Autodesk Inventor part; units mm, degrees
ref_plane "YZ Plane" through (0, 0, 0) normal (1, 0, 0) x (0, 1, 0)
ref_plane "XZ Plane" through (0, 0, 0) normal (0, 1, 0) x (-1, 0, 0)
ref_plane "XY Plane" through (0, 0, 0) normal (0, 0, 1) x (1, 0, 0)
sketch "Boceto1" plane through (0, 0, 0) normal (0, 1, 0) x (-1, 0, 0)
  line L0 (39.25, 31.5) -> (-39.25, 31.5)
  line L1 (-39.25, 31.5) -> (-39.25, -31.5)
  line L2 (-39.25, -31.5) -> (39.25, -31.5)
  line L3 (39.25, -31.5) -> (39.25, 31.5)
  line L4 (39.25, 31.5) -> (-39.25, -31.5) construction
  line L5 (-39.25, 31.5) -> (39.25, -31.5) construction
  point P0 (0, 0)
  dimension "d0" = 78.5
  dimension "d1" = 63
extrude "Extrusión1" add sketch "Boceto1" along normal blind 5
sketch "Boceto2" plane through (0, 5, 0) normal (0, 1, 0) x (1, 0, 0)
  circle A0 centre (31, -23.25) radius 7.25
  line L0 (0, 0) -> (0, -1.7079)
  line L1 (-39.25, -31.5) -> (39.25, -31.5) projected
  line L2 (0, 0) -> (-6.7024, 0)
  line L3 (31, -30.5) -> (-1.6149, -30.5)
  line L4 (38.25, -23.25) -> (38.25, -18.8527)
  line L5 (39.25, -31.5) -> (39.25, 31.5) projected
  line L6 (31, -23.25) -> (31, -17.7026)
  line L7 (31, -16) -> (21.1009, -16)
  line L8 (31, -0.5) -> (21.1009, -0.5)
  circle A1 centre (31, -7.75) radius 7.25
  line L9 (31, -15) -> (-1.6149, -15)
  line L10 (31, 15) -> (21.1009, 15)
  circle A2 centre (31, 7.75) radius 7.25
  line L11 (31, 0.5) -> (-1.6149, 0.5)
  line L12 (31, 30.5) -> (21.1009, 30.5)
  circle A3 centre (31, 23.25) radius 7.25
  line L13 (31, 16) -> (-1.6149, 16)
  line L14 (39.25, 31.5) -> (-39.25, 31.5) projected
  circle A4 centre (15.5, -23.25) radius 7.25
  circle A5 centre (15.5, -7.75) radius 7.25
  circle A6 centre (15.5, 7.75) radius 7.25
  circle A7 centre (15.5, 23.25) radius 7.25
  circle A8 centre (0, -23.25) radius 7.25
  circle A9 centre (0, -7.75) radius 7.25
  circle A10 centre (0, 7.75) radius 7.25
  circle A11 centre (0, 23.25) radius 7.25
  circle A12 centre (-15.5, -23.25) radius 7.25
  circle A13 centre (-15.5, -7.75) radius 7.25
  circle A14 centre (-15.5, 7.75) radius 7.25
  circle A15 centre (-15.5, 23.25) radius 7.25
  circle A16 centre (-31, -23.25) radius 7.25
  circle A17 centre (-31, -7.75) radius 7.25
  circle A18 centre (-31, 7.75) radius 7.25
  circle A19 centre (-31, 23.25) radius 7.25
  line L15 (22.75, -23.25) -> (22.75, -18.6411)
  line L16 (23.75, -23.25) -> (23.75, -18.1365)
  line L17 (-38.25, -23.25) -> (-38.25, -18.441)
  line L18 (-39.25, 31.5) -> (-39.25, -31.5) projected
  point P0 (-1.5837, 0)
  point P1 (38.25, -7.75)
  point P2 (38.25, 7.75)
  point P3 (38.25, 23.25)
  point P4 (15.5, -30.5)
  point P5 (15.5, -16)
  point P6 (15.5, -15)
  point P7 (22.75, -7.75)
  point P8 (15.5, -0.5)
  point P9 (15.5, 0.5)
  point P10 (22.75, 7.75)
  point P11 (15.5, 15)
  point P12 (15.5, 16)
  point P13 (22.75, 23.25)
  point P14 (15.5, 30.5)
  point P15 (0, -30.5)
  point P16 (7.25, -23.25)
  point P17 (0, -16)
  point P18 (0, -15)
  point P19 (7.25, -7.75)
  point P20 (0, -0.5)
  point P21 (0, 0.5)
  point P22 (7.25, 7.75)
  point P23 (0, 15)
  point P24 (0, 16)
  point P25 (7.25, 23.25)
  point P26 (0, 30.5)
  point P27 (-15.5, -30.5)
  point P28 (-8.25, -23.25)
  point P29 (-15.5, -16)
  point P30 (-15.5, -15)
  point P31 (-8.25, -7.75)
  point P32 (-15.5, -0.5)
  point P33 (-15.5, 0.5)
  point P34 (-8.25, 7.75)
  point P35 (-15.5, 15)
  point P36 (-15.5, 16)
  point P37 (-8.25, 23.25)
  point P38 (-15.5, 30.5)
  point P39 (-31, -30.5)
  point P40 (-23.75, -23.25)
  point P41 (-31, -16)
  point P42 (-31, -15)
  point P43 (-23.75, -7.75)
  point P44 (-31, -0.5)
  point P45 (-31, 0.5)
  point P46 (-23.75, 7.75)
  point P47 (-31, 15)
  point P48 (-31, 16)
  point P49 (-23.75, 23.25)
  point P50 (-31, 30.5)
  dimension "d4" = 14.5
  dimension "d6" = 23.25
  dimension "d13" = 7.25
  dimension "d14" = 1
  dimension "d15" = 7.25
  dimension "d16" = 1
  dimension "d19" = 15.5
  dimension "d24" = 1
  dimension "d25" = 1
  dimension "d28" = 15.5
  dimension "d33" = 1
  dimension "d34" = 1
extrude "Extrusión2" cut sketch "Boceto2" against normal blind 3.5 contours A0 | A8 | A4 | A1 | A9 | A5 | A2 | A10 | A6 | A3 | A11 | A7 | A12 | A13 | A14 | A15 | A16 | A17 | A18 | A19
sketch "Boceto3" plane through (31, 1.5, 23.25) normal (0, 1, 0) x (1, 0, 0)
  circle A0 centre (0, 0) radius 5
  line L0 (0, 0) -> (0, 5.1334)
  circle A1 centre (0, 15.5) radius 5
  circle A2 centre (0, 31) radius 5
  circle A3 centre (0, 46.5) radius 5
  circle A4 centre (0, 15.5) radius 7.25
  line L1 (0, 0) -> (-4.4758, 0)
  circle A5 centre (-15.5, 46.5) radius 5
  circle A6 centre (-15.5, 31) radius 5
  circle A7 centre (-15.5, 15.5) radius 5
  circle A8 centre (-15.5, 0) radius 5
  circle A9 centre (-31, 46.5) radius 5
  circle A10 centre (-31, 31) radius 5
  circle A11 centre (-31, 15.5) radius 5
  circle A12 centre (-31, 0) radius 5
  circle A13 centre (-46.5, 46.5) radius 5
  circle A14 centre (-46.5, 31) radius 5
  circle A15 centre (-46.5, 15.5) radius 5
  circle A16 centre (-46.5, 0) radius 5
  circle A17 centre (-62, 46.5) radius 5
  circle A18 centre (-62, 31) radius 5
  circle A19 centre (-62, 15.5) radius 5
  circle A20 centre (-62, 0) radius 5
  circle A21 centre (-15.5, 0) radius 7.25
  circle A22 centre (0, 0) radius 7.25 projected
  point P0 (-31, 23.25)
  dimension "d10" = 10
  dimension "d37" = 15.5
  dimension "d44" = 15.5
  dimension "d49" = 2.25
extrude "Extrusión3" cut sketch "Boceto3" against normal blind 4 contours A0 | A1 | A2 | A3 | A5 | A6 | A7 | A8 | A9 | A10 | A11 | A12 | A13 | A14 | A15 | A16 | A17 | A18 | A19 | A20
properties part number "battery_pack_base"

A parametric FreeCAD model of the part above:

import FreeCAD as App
import Part
import Sketcher
Q = App.Units.Quantity

doc = App.newDocument("Part")
body = doc.addObject("PartDesign::Body", "Body")

# Sketch on XZ plane
sketch1 = body.newObject("Sketcher::SketchObject", "Sketch")
sketch1.AttachmentSupport = (doc.getObject("XZ_Plane"), [""])
sketch1.MapMode = "FlatFace"
sketch1.addGeometry([
    Part.LineSegment(App.Vector(-39.25, -31.5, 0), App.Vector(-39.25, 31.5, 0)),
    Part.LineSegment(App.Vector(-39.25, 31.5, 0), App.Vector(39.25, 31.5, 0)),
    Part.LineSegment(App.Vector(39.25, 31.5, 0), App.Vector(39.25, -31.5, 0)),
    Part.LineSegment(App.Vector(39.25, -31.5, 0), App.Vector(-39.25, -31.5, 0)),
], False)
sketch1.addConstraint([
    Sketcher.Constraint("Coincident", 0, 2, 1, 1),
    Sketcher.Constraint("Coincident", 1, 2, 2, 1),
    Sketcher.Constraint("Coincident", 2, 2, 3, 1),
    Sketcher.Constraint("Coincident", 3, 2, 0, 1),
    Sketcher.Constraint("Vertical", 0),
    Sketcher.Constraint("Horizontal", 1),
    Sketcher.Constraint("Vertical", 2),
    Sketcher.Constraint("Horizontal", 3),
    Sketcher.Constraint("Symmetric", 0, 2, 2, 2, -1, 1),
    Sketcher.Constraint("DistanceY", 0, 1, 0, 2, Q("63 mm")),
    Sketcher.Constraint("DistanceX", 1, 1, 1, 2, Q("78.5 mm")),
])
pad1 = body.newObject("PartDesign::Pad", "Pad")
pad1.Profile = sketch1
pad1.Length = 5
pad1.Reversed = True

# Sketch on XZ plane
sketch2 = body.newObject("Sketcher::SketchObject", "Sketch001")
sketch2.AttachmentSupport = (doc.getObject("XZ_Plane"), [""])
sketch2.MapMode = "FlatFace"
sketch2.AttachmentOffset = App.Placement(App.Vector(0, 0, -5), App.Rotation())
sketch2.addGeometry([
    Part.Circle(App.Vector(31, 23.25, 0), App.Vector(0, 0, 1), 7.25),  # 0
    Part.Circle(App.Vector(0, 23.25, 0), App.Vector(0, 0, 1), 7.25),  # 1
    Part.Circle(App.Vector(15.5, 23.25, 0), App.Vector(0, 0, 1), 7.25),  # 2
    Part.Circle(App.Vector(31, 7.75, 0), App.Vector(0, 0, 1), 7.25),  # 3
    Part.Circle(App.Vector(0, 7.75, 0), App.Vector(0, 0, 1), 7.25),  # 4
    Part.Circle(App.Vector(15.5, 7.75, 0), App.Vector(0, 0, 1), 7.25),  # 5
    Part.Circle(App.Vector(31, -7.75, 0), App.Vector(0, 0, 1), 7.25),  # 6
    Part.Circle(App.Vector(0, -7.75, 0), App.Vector(0, 0, 1), 7.25),  # 7
    Part.Circle(App.Vector(15.5, -7.75, 0), App.Vector(0, 0, 1), 7.25),  # 8
    Part.Circle(App.Vector(31, -23.25, 0), App.Vector(0, 0, 1), 7.25),  # 9
    Part.Circle(App.Vector(0, -23.25, 0), App.Vector(0, 0, 1), 7.25),  # 10
    Part.Circle(App.Vector(15.5, -23.25, 0), App.Vector(0, 0, 1), 7.25),  # 11
    Part.Circle(App.Vector(-15.5, 23.25, 0), App.Vector(0, 0, 1), 7.25),  # 12
    Part.Circle(App.Vector(-15.5, 7.75, 0), App.Vector(0, 0, 1), 7.25),  # 13
    Part.Circle(App.Vector(-15.5, -7.75, 0), App.Vector(0, 0, 1), 7.25),  # 14
    Part.Circle(App.Vector(-15.5, -23.25, 0), App.Vector(0, 0, 1), 7.25),  # 15
    Part.Circle(App.Vector(-31, 23.25, 0), App.Vector(0, 0, 1), 7.25),  # 16
    Part.Circle(App.Vector(-31, 7.75, 0), App.Vector(0, 0, 1), 7.25),  # 17
    Part.Circle(App.Vector(-31, -7.75, 0), App.Vector(0, 0, 1), 7.25),  # 18
    Part.Circle(App.Vector(-31, -23.25, 0), App.Vector(0, 0, 1), 7.25),  # 19
], False)
sketch2.addConstraint([
    Sketcher.Constraint("Equal", 0, 1),
    Sketcher.Constraint("Equal", 1, 2),
    Sketcher.Constraint("Equal", 2, 3),
    Sketcher.Constraint("Equal", 3, 4),
    Sketcher.Constraint("Equal", 4, 5),
    Sketcher.Constraint("Equal", 5, 6),
    Sketcher.Constraint("Equal", 6, 7),
    Sketcher.Constraint("Equal", 7, 8),
    Sketcher.Constraint("Equal", 8, 9),
    Sketcher.Constraint("Equal", 9, 10),
    Sketcher.Constraint("Equal", 10, 11),
    Sketcher.Constraint("Equal", 11, 12),
    Sketcher.Constraint("Equal", 12, 13),
    Sketcher.Constraint("Equal", 13, 14),
    Sketcher.Constraint("Equal", 14, 15),
    Sketcher.Constraint("Equal", 15, 16),
    Sketcher.Constraint("Equal", 16, 17),
    Sketcher.Constraint("Equal", 17, 18),
    Sketcher.Constraint("Equal", 18, 19),
    Sketcher.Constraint("Symmetric", 4, 3, 7, 3, -1, 1),
    Sketcher.Constraint("Symmetric", 1, 3, 10, 3, -1, 1),
    Sketcher.Constraint("Symmetric", 11, 3, 12, 3, -1, 1),
    Sketcher.Constraint("Symmetric", 8, 3, 13, 3, -1, 1),
    Sketcher.Constraint("Symmetric", 5, 3, 14, 3, -1, 1),
    Sketcher.Constraint("Symmetric", 2, 3, 15, 3, -1, 1),
    Sketcher.Constraint("Symmetric", 9, 3, 16, 3, -1, 1),
    Sketcher.Constraint("Symmetric", 6, 3, 17, 3, -1, 1),
    Sketcher.Constraint("Symmetric", 3, 3, 18, 3, -1, 1),
    Sketcher.Constraint("Symmetric", 0, 3, 19, 3, -1, 1),
    Sketcher.Constraint("Symmetric", 2, 3, 12, 3, -2),
    Sketcher.Constraint("Symmetric", 5, 3, 13, 3, -2),
    Sketcher.Constraint("Symmetric", 0, 3, 16, 3, -2),
    Sketcher.Constraint("Symmetric", 3, 3, 17, 3, -2),
    Sketcher.Constraint("PointOnObject", 1, 3, -2),
    Sketcher.Constraint("PointOnObject", 4, 3, -2),
    Sketcher.Constraint("Horizontal", 0, 3, 1, 3),
    Sketcher.Constraint("Horizontal", 1, 3, 2, 3),
    Sketcher.Constraint("Horizontal", 3, 3, 4, 3),
    Sketcher.Constraint("Horizontal", 4, 3, 5, 3),
    Sketcher.Constraint("Vertical", 0, 3, 3, 3),
    Sketcher.Constraint("Vertical", 2, 3, 5, 3),
    Sketcher.Constraint("Diameter", 0, Q("14.5 mm")),
    Sketcher.Constraint("DistanceX", -1, 1, 2, 3, Q("15.5 mm")),
    Sketcher.Constraint("DistanceX", 2, 3, 0, 3, Q("15.5 mm")),
    Sketcher.Constraint("DistanceY", 3, 3, 0, 3, Q("15.5 mm")),
    Sketcher.Constraint("DistanceY", 6, 3, 3, 3, Q("15.5 mm")),
])
pocket1 = body.newObject("PartDesign::Pocket", "Pocket")
pocket1.Profile = sketch2
pocket1.Length = 3.5
pocket1.Reversed = True

# Sketch on XZ plane
sketch3 = body.newObject("Sketcher::SketchObject", "Sketch002")
sketch3.AttachmentSupport = (doc.getObject("XZ_Plane"), [""])
sketch3.MapMode = "FlatFace"
sketch3.AttachmentOffset = App.Placement(App.Vector(0, 0, -1.5), App.Rotation())
sketch3.addGeometry([
    Part.Circle(App.Vector(31, 23.25, 0), App.Vector(0, 0, 1), 5),  # 0
    Part.Circle(App.Vector(31, 7.75, 0), App.Vector(0, 0, 1), 5),  # 1
    Part.Circle(App.Vector(31, -7.75, 0), App.Vector(0, 0, 1), 5),  # 2
    Part.Circle(App.Vector(31, -23.25, 0), App.Vector(0, 0, 1), 5),  # 3
    Part.Circle(App.Vector(15.5, -23.25, 0), App.Vector(0, 0, 1), 5),  # 4
    Part.Circle(App.Vector(15.5, -7.75, 0), App.Vector(0, 0, 1), 5),  # 5
    Part.Circle(App.Vector(15.5, 7.75, 0), App.Vector(0, 0, 1), 5),  # 6
    Part.Circle(App.Vector(15.5, 23.25, 0), App.Vector(0, 0, 1), 5),  # 7
    Part.Circle(App.Vector(0, -23.25, 0), App.Vector(0, 0, 1), 5),  # 8
    Part.Circle(App.Vector(0, -7.75, 0), App.Vector(0, 0, 1), 5),  # 9
    Part.Circle(App.Vector(0, 7.75, 0), App.Vector(0, 0, 1), 5),  # 10
    Part.Circle(App.Vector(0, 23.25, 0), App.Vector(0, 0, 1), 5),  # 11
    Part.Circle(App.Vector(-15.5, -23.25, 0), App.Vector(0, 0, 1), 5),  # 12
    Part.Circle(App.Vector(-15.5, -7.75, 0), App.Vector(0, 0, 1), 5),  # 13
    Part.Circle(App.Vector(-15.5, 7.75, 0), App.Vector(0, 0, 1), 5),  # 14
    Part.Circle(App.Vector(-15.5, 23.25, 0), App.Vector(0, 0, 1), 5),  # 15
    Part.Circle(App.Vector(-31, -23.25, 0), App.Vector(0, 0, 1), 5),  # 16
    Part.Circle(App.Vector(-31, -7.75, 0), App.Vector(0, 0, 1), 5),  # 17
    Part.Circle(App.Vector(-31, 7.75, 0), App.Vector(0, 0, 1), 5),  # 18
    Part.Circle(App.Vector(-31, 23.25, 0), App.Vector(0, 0, 1), 5),  # 19
], False)
sketch3.addConstraint([
    Sketcher.Constraint("Equal", 0, 1),
    Sketcher.Constraint("Equal", 1, 2),
    Sketcher.Constraint("Equal", 2, 3),
    Sketcher.Constraint("Equal", 3, 4),
    Sketcher.Constraint("Equal", 4, 5),
    Sketcher.Constraint("Equal", 5, 6),
    Sketcher.Constraint("Equal", 6, 7),
    Sketcher.Constraint("Equal", 7, 8),
    Sketcher.Constraint("Equal", 8, 9),
    Sketcher.Constraint("Equal", 9, 10),
    Sketcher.Constraint("Equal", 10, 11),
    Sketcher.Constraint("Equal", 11, 12),
    Sketcher.Constraint("Equal", 12, 13),
    Sketcher.Constraint("Equal", 13, 14),
    Sketcher.Constraint("Equal", 14, 15),
    Sketcher.Constraint("Equal", 15, 16),
    Sketcher.Constraint("Equal", 16, 17),
    Sketcher.Constraint("Equal", 17, 18),
    Sketcher.Constraint("Equal", 18, 19),
    Sketcher.Constraint("Symmetric", 9, 3, 10, 3, -1, 1),
    Sketcher.Constraint("Symmetric", 8, 3, 11, 3, -1, 1),
    Sketcher.Constraint("Symmetric", 7, 3, 12, 3, -1, 1),
    Sketcher.Constraint("Symmetric", 6, 3, 13, 3, -1, 1),
    Sketcher.Constraint("Symmetric", 5, 3, 14, 3, -1, 1),
    Sketcher.Constraint("Symmetric", 4, 3, 15, 3, -1, 1),
    Sketcher.Constraint("Symmetric", 0, 3, 16, 3, -1, 1),
    Sketcher.Constraint("Symmetric", 1, 3, 17, 3, -1, 1),
    Sketcher.Constraint("Symmetric", 2, 3, 18, 3, -1, 1),
    Sketcher.Constraint("Symmetric", 3, 3, 19, 3, -1, 1),
    Sketcher.Constraint("Symmetric", 4, 3, 12, 3, -2),
    Sketcher.Constraint("Symmetric", 5, 3, 13, 3, -2),
    Sketcher.Constraint("Symmetric", 3, 3, 16, 3, -2),
    Sketcher.Constraint("Symmetric", 2, 3, 17, 3, -2),
    Sketcher.Constraint("PointOnObject", 8, 3, -2),
    Sketcher.Constraint("PointOnObject", 9, 3, -2),
    Sketcher.Constraint("Horizontal", 3, 3, 4, 3),
    Sketcher.Constraint("Horizontal", 2, 3, 5, 3),
    Sketcher.Constraint("Horizontal", 4, 3, 8, 3),
    Sketcher.Constraint("Horizontal", 5, 3, 9, 3),
    Sketcher.Constraint("Vertical", 0, 3, 1, 3),
    Sketcher.Constraint("Vertical", 4, 3, 5, 3),
    Sketcher.Constraint("Diameter", 0, Q("10 mm")),
    Sketcher.Constraint("DistanceX", -1, 1, 4, 3, Q("15.5 mm")),
    Sketcher.Constraint("DistanceY", 1, 3, 0, 3, Q("15.5 mm")),
    Sketcher.Constraint("DistanceY", 2, 3, 1, 3, Q("15.5 mm")),
    Sketcher.Constraint("DistanceX", 4, 3, 3, 3, Q("15.5 mm")),
])
pocket2 = body.newObject("PartDesign::Pocket", "Pocket001")
pocket2.Profile = sketch3
pocket2.Length = 4
pocket2.Reversed = True

doc.recompute()
